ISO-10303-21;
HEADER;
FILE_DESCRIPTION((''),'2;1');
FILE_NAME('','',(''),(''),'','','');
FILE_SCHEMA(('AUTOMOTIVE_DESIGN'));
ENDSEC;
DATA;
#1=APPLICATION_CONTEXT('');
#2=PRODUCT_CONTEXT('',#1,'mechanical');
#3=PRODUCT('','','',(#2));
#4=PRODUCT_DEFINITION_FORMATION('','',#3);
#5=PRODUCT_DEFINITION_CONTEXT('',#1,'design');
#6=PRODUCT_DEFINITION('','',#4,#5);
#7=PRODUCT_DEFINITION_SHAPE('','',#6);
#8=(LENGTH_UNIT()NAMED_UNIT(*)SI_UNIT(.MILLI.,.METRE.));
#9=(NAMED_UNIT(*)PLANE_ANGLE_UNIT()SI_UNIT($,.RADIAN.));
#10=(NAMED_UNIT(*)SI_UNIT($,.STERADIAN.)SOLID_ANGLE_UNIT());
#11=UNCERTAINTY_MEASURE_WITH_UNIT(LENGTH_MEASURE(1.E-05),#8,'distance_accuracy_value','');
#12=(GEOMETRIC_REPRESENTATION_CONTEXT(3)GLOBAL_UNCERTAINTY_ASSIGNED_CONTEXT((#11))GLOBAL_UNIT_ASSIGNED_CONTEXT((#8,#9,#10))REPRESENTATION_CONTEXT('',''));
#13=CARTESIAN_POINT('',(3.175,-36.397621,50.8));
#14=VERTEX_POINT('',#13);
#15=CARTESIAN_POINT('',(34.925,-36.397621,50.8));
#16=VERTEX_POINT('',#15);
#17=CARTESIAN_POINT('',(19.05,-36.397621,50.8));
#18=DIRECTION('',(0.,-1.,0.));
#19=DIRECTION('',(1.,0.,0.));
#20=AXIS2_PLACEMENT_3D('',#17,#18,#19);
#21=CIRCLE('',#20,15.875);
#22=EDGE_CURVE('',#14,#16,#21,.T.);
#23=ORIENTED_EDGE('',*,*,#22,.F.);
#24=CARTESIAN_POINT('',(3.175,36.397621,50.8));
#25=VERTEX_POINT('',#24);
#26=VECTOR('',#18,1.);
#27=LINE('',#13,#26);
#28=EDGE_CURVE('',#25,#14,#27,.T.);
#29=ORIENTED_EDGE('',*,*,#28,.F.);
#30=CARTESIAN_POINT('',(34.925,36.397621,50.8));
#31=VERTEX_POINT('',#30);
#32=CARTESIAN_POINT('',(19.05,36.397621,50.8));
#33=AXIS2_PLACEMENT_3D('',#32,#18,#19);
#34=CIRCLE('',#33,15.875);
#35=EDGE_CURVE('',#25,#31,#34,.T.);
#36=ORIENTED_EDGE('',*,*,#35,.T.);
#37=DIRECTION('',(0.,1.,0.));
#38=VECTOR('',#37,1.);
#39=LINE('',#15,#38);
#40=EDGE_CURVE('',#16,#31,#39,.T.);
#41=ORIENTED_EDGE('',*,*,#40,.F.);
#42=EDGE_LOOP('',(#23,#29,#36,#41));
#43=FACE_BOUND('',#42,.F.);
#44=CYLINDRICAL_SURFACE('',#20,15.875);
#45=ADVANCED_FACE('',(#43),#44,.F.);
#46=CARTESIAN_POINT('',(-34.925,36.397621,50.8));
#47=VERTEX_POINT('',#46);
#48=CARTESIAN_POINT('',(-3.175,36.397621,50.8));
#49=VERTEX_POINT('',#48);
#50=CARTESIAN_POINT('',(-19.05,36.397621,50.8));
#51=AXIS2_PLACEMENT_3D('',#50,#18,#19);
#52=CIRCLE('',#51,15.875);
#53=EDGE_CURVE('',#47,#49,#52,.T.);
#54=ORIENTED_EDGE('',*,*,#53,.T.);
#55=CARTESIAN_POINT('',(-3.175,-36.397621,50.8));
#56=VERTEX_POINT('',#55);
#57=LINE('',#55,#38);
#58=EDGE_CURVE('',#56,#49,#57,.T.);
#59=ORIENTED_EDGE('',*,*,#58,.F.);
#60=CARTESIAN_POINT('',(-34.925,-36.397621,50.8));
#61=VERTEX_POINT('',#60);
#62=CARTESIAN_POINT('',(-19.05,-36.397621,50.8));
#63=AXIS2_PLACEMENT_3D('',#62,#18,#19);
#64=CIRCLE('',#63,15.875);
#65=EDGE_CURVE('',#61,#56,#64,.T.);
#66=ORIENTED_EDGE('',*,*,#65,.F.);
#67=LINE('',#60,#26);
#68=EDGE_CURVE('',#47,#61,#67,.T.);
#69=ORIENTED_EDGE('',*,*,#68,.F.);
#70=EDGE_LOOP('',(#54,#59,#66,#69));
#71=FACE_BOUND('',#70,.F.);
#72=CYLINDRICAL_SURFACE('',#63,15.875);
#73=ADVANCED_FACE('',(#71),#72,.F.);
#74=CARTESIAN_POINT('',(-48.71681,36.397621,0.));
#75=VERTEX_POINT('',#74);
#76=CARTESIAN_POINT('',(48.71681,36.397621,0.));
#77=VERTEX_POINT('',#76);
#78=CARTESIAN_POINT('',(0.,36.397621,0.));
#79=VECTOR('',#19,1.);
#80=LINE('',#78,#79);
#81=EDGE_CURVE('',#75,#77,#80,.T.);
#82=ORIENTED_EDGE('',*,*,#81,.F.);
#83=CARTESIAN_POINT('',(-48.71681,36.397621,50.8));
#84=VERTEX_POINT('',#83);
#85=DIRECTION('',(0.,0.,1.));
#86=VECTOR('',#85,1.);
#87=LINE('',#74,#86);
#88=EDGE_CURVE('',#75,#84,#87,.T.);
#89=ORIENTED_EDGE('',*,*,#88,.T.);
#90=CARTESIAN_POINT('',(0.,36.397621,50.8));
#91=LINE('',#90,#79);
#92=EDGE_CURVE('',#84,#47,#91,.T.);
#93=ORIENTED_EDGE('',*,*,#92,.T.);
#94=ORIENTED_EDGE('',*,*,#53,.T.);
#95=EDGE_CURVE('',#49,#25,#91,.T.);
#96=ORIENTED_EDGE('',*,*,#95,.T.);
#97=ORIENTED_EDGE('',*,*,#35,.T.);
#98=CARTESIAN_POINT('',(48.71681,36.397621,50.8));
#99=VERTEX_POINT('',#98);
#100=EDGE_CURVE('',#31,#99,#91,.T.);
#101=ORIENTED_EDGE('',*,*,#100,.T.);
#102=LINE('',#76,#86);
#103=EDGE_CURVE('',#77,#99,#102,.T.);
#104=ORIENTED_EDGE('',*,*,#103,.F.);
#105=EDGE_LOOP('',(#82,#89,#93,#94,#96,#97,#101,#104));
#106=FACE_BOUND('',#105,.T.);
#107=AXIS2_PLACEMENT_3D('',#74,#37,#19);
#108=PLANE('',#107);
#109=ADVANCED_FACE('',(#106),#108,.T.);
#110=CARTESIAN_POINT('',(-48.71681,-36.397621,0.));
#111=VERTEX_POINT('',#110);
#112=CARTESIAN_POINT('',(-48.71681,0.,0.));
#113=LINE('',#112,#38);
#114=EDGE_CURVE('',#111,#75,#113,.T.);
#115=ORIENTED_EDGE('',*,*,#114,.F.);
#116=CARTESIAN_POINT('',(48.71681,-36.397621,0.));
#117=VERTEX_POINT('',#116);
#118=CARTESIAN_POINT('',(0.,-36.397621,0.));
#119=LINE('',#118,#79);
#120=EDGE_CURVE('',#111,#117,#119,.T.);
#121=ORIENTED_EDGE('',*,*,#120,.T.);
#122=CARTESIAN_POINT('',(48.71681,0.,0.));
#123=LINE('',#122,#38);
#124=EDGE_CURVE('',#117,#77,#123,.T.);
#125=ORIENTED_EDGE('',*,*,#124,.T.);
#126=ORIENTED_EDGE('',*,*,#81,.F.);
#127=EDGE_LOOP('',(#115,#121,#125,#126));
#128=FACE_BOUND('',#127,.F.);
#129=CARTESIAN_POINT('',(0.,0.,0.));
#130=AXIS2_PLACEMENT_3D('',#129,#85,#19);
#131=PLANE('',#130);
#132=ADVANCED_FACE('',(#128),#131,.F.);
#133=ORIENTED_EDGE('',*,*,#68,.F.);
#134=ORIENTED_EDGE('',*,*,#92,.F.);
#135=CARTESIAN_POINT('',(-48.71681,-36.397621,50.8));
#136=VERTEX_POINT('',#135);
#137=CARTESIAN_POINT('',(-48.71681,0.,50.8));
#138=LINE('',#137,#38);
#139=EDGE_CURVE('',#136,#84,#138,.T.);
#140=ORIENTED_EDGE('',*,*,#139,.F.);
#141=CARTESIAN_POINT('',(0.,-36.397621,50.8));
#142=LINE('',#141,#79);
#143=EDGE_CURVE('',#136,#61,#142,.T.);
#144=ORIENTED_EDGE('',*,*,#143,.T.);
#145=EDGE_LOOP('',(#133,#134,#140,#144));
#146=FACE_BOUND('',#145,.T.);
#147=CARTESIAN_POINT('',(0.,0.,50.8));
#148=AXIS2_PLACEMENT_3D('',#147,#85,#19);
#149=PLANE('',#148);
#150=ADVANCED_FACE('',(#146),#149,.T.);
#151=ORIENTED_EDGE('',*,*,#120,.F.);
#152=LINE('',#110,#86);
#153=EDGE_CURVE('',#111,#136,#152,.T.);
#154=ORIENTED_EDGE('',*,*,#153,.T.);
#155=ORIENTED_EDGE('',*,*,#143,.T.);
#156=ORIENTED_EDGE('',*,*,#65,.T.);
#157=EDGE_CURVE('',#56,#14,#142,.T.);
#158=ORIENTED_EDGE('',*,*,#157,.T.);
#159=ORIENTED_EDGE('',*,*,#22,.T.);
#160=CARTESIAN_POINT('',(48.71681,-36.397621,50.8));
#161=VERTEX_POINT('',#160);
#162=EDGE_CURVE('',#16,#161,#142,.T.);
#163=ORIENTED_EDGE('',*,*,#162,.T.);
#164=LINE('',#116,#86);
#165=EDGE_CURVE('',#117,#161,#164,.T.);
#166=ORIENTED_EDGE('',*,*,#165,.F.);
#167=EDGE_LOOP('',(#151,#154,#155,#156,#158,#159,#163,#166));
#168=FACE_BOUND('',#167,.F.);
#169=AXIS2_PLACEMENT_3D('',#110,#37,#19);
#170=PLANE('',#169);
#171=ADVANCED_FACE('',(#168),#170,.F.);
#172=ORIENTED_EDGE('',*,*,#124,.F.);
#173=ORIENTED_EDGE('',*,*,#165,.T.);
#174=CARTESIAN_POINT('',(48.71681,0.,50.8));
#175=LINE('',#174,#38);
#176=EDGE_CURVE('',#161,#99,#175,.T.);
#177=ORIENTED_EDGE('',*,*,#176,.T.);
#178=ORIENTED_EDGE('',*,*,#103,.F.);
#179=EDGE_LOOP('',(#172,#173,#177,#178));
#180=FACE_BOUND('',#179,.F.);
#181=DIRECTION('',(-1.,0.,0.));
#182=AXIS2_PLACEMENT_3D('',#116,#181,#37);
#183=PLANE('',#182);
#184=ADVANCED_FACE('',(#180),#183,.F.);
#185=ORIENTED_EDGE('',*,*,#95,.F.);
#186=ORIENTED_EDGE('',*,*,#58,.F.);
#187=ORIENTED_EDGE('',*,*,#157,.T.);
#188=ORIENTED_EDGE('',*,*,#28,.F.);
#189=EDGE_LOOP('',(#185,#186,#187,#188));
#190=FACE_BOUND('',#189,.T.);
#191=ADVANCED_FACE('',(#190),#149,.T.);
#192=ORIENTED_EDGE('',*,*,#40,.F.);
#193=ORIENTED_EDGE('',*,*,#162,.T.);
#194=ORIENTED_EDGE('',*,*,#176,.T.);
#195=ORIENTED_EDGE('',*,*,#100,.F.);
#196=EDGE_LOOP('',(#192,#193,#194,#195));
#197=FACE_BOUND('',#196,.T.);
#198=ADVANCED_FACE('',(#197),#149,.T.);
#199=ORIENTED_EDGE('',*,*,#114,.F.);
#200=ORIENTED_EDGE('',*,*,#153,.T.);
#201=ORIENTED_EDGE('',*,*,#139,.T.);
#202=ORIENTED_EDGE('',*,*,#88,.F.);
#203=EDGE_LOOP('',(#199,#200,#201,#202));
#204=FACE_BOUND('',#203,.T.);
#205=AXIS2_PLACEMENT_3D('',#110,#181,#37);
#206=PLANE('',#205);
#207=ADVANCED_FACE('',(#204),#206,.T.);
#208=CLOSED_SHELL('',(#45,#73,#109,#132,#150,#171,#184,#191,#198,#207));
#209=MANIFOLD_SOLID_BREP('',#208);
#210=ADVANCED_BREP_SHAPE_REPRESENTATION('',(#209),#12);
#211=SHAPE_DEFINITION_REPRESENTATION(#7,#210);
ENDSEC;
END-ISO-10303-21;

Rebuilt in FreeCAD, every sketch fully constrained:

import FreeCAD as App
import Part
import Sketcher
from FreeCAD import Vector
Q = App.Units.Quantity


def add_polygon(sketch, points):
    """Adds a closed chain of lines whose ends are joined by coincident constraints."""
    first, n = sketch.GeometryCount, len(points)
    for a, b in zip(points, points[1:] + points[:1]):
        sketch.addGeometry(Part.LineSegment(App.Vector(*a, 0), App.Vector(*b, 0)), False)
    for i in range(n):
        sketch.addConstraint(Sketcher.Constraint("Coincident", first + i, 2, first + (i + 1) % n, 1))

doc = App.newDocument("Part")
params = doc.addObject("Spreadsheet::Sheet", "Params")
for row, (alias, value) in enumerate([
    ("pad1_length", "2 in"),
    ("sketch2_diameter", "1.25 in"),
], start=1):
    params.set(f"A{row}", alias)
    params.set(f"B{row}", "=" + value)
    params.setAlias(f"B{row}", alias)

body = doc.addObject("PartDesign::Body", "Body")

# Sketch on XY plane
sketch1 = body.newObject("Sketcher::SketchObject", "Sketch")
sketch1.AttachmentSupport = (doc.getObject("XY_Plane"), [""])
sketch1.MapMode = "FlatFace"
add_polygon(sketch1, [(-49, 36), (-49, -36), (49, -36), (49, 36)])  # lines 0-3
sketch1.addConstraint([
    Sketcher.Constraint("Vertical", 0),
    Sketcher.Constraint("Horizontal", 1),
    Sketcher.Constraint("Vertical", 2),
    Sketcher.Constraint("Horizontal", 3),
    Sketcher.Constraint("Symmetric", 0, 2, 2, 2, -1, 1),
    Sketcher.Constraint("DistanceX", 1, 1, 1, 2, Q("97.43362 mm")),
    Sketcher.Constraint("DistanceY", 0, 2, 0, 1, Q("72.795242 mm")),
])
pad1 = body.newObject("PartDesign::Pad", "Pad")
pad1.Profile = sketch1
pad1.setExpression("Length", "Params.pad1_length")

# Sketch on XZ plane
sketch2 = body.newObject("Sketcher::SketchObject", "Sketch001")
sketch2.AttachmentSupport = (doc.getObject("XZ_Plane"), [""])
sketch2.MapMode = "FlatFace"
sketch2.AttachmentOffset = App.Placement(Vector(0, 0, 36.397621), App.Rotation())
sketch2.addGeometry([
    Part.Circle(Vector(-19, 51, 0), Vector(0, 0, 1), 16),
    Part.Circle(Vector(19, 51, 0), Vector(0, 0, 1), 16),
], False)
sketch2.addConstraint([
    Sketcher.Constraint("Equal", 0, 1),
    Sketcher.Constraint("Symmetric", 0, 3, 1, 3, -2),
    Sketcher.Constraint("Diameter", 0, Q("1.25 in")),
    Sketcher.Constraint("DistanceY", -1, 1, 0, 3, Q("2 in")),
    Sketcher.Constraint("DistanceX", 0, 3, 1, 3, Q("1.5 in")),
])
sketch2.setExpression("Constraints[2]", "Params.sketch2_diameter")
pocket1 = body.newObject("PartDesign::Pocket", "Pocket")
pocket1.Profile = sketch2
pocket1.Type = "ThroughAll"

doc.recompute()
